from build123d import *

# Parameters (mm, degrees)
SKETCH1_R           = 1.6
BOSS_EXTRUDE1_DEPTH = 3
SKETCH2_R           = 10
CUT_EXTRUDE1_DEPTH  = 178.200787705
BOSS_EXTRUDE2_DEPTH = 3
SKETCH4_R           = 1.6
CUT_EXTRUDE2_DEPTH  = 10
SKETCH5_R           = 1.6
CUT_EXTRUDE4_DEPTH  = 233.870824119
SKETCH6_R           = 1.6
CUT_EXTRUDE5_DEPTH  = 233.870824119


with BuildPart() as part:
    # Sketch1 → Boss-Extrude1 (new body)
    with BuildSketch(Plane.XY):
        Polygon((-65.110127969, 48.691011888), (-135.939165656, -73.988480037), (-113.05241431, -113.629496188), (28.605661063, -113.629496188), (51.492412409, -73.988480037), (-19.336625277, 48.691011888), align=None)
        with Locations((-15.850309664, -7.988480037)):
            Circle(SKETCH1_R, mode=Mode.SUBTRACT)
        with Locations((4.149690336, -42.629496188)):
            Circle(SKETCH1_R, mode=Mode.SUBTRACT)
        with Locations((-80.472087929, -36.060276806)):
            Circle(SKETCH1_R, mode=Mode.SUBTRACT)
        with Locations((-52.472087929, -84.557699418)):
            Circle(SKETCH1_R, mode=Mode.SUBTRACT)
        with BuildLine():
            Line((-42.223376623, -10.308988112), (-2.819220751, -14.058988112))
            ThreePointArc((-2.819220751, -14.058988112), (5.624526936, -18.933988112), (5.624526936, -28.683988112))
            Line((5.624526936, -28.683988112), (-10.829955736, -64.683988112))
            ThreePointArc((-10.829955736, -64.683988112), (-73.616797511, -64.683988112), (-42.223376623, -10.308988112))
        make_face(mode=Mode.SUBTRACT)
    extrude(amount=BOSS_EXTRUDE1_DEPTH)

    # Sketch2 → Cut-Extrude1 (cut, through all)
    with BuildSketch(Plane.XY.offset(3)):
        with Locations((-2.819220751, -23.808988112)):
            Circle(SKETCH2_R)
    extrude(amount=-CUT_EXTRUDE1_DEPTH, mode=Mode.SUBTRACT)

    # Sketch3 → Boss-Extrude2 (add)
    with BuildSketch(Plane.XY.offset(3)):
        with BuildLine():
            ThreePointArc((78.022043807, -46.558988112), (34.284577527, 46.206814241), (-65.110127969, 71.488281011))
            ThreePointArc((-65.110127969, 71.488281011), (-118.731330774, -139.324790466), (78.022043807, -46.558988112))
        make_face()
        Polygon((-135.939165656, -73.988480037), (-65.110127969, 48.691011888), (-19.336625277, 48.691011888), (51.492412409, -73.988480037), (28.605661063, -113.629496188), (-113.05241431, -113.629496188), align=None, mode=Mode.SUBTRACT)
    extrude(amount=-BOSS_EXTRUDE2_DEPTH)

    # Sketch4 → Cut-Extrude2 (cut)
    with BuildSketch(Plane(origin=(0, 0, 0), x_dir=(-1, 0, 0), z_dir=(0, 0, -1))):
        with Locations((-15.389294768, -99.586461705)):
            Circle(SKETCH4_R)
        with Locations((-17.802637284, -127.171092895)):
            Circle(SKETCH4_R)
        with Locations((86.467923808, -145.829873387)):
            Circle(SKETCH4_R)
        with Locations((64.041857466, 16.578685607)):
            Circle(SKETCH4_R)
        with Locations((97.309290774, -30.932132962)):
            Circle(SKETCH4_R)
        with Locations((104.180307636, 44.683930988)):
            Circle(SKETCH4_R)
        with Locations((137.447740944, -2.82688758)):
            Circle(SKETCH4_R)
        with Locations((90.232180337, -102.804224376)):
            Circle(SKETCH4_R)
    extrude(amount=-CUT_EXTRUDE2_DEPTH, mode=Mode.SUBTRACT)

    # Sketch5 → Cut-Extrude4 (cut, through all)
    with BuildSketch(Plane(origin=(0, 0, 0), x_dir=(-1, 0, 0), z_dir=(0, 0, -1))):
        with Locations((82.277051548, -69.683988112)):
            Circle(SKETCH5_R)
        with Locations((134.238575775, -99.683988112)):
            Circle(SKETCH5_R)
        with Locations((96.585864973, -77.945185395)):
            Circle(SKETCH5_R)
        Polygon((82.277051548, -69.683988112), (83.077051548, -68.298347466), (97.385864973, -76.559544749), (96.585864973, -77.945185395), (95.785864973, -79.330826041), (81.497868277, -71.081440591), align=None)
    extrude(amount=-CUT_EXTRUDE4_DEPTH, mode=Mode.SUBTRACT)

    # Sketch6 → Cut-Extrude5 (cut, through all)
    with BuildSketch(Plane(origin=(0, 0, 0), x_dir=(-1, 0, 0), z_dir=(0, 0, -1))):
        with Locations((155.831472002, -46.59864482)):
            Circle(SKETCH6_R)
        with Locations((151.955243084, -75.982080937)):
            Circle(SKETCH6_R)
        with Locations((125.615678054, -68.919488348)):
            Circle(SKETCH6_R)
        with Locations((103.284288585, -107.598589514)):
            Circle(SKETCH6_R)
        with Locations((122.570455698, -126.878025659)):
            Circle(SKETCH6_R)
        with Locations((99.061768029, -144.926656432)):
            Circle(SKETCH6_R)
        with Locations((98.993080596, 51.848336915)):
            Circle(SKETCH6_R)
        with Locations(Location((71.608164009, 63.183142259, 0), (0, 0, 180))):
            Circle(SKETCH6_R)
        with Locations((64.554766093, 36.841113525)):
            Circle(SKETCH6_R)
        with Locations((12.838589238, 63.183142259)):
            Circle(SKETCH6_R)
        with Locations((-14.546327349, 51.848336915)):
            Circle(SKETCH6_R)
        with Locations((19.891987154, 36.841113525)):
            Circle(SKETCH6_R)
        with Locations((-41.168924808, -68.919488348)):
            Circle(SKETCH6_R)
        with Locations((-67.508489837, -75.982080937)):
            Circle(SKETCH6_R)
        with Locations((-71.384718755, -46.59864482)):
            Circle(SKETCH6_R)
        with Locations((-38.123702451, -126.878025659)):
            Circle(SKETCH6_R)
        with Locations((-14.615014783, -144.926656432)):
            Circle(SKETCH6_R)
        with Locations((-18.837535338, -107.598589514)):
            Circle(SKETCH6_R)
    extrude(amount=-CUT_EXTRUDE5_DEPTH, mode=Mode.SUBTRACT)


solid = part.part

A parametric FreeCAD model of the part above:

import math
import FreeCAD as App
import Part
import Sketcher
Q = App.Units.Quantity

doc = App.newDocument("Part")
body = doc.addObject("PartDesign::Body", "Body")

# Sketch on XY plane
sketch1 = body.newObject("Sketcher::SketchObject", "Sketch")
sketch1.AttachmentSupport = (doc.getObject("XY_Plane"), [""])
sketch1.MapMode = "FlatFace"
sketch1.addGeometry([
    Part.LineSegment(App.Vector(-65.1, 48.7, 0), App.Vector(-135.9, -74, 0)),  # 0
    Part.LineSegment(App.Vector(-135.9, -74, 0), App.Vector(-113.1, -113.6, 0)),  # 1
    Part.LineSegment(App.Vector(-113.1, -113.6, 0), App.Vector(28.6, -113.6, 0)),  # 2
    Part.LineSegment(App.Vector(28.6, -113.6, 0), App.Vector(51.5, -74, 0)),  # 3
    Part.LineSegment(App.Vector(51.5, -74, 0), App.Vector(-19.3, 48.7, 0)),  # 4
    Part.LineSegment(App.Vector(-19.3, 48.7, 0), App.Vector(-65.1, 48.7, 0)),  # 5
    Part.Circle(App.Vector(-52.5, -84.6, 0), App.Vector(0, 0, 1), 1.6),  # 6
    Part.ArcOfCircle(Part.Circle(App.Vector(-42.2, -46.6, 0), App.Vector(0, 0, 1), 36.2), math.radians(90), math.radians(330)),  # 7
    Part.LineSegment(App.Vector(-42.2, -10.3, 0), App.Vector(-2.8, -14.1, 0)),  # 8
    Part.ArcOfCircle(Part.Circle(App.Vector(-2.8, -23.8, 0), App.Vector(0, 0, 1), 9.8), math.radians(-30), math.radians(90)),  # 9
    Part.LineSegment(App.Vector(5.6, -28.7, 0), App.Vector(-10.8, -64.7, 0)),  # 10
    Part.Circle(App.Vector(-80.5, -36.1, 0), App.Vector(0, 0, 1), 1.6),  # 11
    Part.Circle(App.Vector(4.1, -42.6, 0), App.Vector(0, 0, 1), 1.6),  # 12
    Part.Circle(App.Vector(-15.9, -8, 0), App.Vector(0, 0, 1), 1.6),  # 13
], False)
sketch1.addConstraint([
    Sketcher.Constraint("Coincident", 0, 2, 1, 1),
    Sketcher.Constraint("Coincident", 1, 2, 2, 1),
    Sketcher.Constraint("Coincident", 2, 2, 3, 1),
    Sketcher.Constraint("Coincident", 3, 2, 4, 1),
    Sketcher.Constraint("Coincident", 4, 2, 5, 1),
    Sketcher.Constraint("Coincident", 5, 2, 0, 1),
    Sketcher.Constraint("Coincident", 7, 1, 8, 1),
    Sketcher.Constraint("Coincident", 8, 2, 9, 2),
    Sketcher.Constraint("Coincident", 9, 1, 10, 1),
    Sketcher.Constraint("Coincident", 10, 2, 7, 2),
    Sketcher.Constraint("Horizontal", 2),
    Sketcher.Constraint("Horizontal", 5),
    Sketcher.Constraint("Equal", 6, 11),
    Sketcher.Constraint("Equal", 11, 12),
    Sketcher.Constraint("Equal", 12, 13),
    Sketcher.Constraint("Parallel", 0, 3),
    Sketcher.Constraint("Parallel", 1, 4),
    Sketcher.Constraint("Horizontal", 0, 2, 3, 2),
    Sketcher.Constraint("Vertical", 9, 3, 8, 2),
    Sketcher.Constraint("Equal", 1, 3),
    Sketcher.Constraint("Equal", 8, 10),
    Sketcher.Constraint("Diameter", 6, 3.2),
    Sketcher.Constraint("Angle", 0, Q("-120 deg")),
    Sketcher.Constraint("Radius", 7, 36.25),
    Sketcher.Constraint("Radius", 9, 9.75),
    Sketcher.Constraint("DistanceX", 11, 3, 6, 3, 28.0),
    Sketcher.Constraint("DistanceX", 13, 3, 12, 3, 20.0),
    Sketcher.Constraint("DistanceY", 0, 2, 13, 3, 66.0),
    Sketcher.Constraint("DistanceY", 1, 2, 12, 3, 71.0),
    Sketcher.Constraint("DistanceY", 10, 2, 9, 1, 36.0),
    Sketcher.Constraint("DistanceY", 9, 3, 4, 2, 72.5),
    Sketcher.Constraint("DistanceY", 9, 3, 7, 1, 13.5),
    Sketcher.Constraint("DistanceY", 9, 1, 9, 3, 4.875),
    Sketcher.Constraint("DistanceY", 6, 3, -1, 1, 84.557699),
    Sketcher.Constraint("DistanceX", 2, 1, 2, 2, 141.658075),
    Sketcher.Constraint("DistanceX", 5, 2, 5, 1, 45.773503),
    Sketcher.Constraint("DistanceY", 7, 3, -1, 1, 46.558988),
    Sketcher.Constraint("DistanceX", 9, 3, -1, 1, 2.819221),
    Sketcher.Constraint("DistanceX", -1, 1, 12, 3, 4.14969),
    Sketcher.Constraint("DistanceY", 13, 3, -1, 1, 7.98848),
    Sketcher.Constraint("DistanceX", -1, 1, 2, 2, 28.605661),
    Sketcher.Constraint("DistanceX", 6, 3, 7, 3, 10.248711),
    Sketcher.Constraint("DistanceY", 7, 3, 11, 3, 10.498711),
    Sketcher.Constraint("DistanceX", 6, 3, 12, 3, 56.621778),
])
pad1 = body.newObject("PartDesign::Pad", "Pad")
pad1.Profile = sketch1
pad1.Length = 3

# Sketch on XY plane
sketch2 = body.newObject("Sketcher::SketchObject", "Sketch001")
sketch2.AttachmentSupport = (doc.getObject("XY_Plane"), [""])
sketch2.MapMode = "FlatFace"
sketch2.AttachmentOffset = App.Placement(App.Vector(0, 0, 3), App.Rotation())
sketch2.addGeometry(Part.Circle(App.Vector(-3, -24, 0), App.Vector(0, 0, 1), 10), False)
sketch2.addConstraint([
    Sketcher.Constraint("Diameter", 0, 20.0),
    Sketcher.Constraint("DistanceX", 0, 3, -1, 1, 2.819221),
    Sketcher.Constraint("DistanceY", 0, 3, -1, 1, 23.808988),
])
pocket1 = body.newObject("PartDesign::Pocket", "Pocket")
pocket1.Profile = sketch2
pocket1.Type = "ThroughAll"

# Sketch on XY plane
sketch3 = body.newObject("Sketcher::SketchObject", "Sketch002")
sketch3.AttachmentSupport = (doc.getObject("XY_Plane"), [""])
sketch3.MapMode = "FlatFace"
sketch3.AttachmentOffset = App.Placement(App.Vector(0, 0, 3), App.Rotation())
sketch3.addGeometry([
    Part.Circle(App.Vector(-42, -47, 0), App.Vector(0, 0, 1), 120),  # 0
    Part.LineSegment(App.Vector(-113, -114, 0), App.Vector(-136, -74, 0)),  # 1
    Part.LineSegment(App.Vector(-136, -74, 0), App.Vector(-65, 49, 0)),  # 2
    Part.LineSegment(App.Vector(-65, 49, 0), App.Vector(-19, 49, 0)),  # 3
    Part.LineSegment(App.Vector(-19, 49, 0), App.Vector(51, -74, 0)),  # 4
    Part.LineSegment(App.Vector(51, -74, 0), App.Vector(29, -114, 0)),  # 5
    Part.LineSegment(App.Vector(29, -114, 0), App.Vector(-113, -114, 0)),  # 6
], False)
sketch3.addConstraint([
    Sketcher.Constraint("Coincident", 1, 2, 2, 1),
    Sketcher.Constraint("Coincident", 2, 2, 3, 1),
    Sketcher.Constraint("Coincident", 3, 2, 4, 1),
    Sketcher.Constraint("Coincident", 4, 2, 5, 1),
    Sketcher.Constraint("Coincident", 5, 2, 6, 1),
    Sketcher.Constraint("Coincident", 6, 2, 1, 1),
    Sketcher.Constraint("Horizontal", 3),
    Sketcher.Constraint("Horizontal", 6),
    Sketcher.Constraint("Parallel", 1, 4),
    Sketcher.Constraint("Parallel", 2, 5),
    Sketcher.Constraint("Horizontal", 1, 2, 4, 2),
    Sketcher.Constraint("Equal", 2, 4),
    Sketcher.Constraint("Angle", 1, Q("120 deg")),
    Sketcher.Constraint("Diameter", 0, 240.490841),
    Sketcher.Constraint("DistanceY", 0, 3, 2, 2, 95.25),
    Sketcher.Constraint("DistanceX", 3, 1, 3, 2, 45.773503),
    Sketcher.Constraint("DistanceX", 6, 2, 6, 1, 141.658075),
    Sketcher.Constraint("DistanceY", 0, 3, -1, 1, 46.558988),
    Sketcher.Constraint("DistanceY", 1, 2, -1, 1, 73.98848),
    Sketcher.Constraint("DistanceX", -1, 1, 5, 2, 28.605661),
    Sketcher.Constraint("DistanceX", 1, 2, 0, 3, 93.715789),
])
pad2 = body.newObject("PartDesign::Pad", "Pad001")
pad2.Profile = sketch3
pad2.Length = 3
pad2.Reversed = True

# Sketch on XY plane
sketch4 = body.newObject("Sketcher::SketchObject", "Sketch003")
sketch4.AttachmentSupport = (doc.getObject("XY_Plane"), [""])
sketch4.MapMode = "FlatFace"
sketch4.addGeometry([
    Part.Circle(App.Vector(15.4, -99.6, 0), App.Vector(0, 0, 1), 1.6),  # 0
    Part.Circle(App.Vector(17.8, -127.2, 0), App.Vector(0, 0, 1), 1.6),  # 1
    Part.Circle(App.Vector(-86.5, -145.8, 0), App.Vector(0, 0, 1), 1.6),  # 2
    Part.Circle(App.Vector(-64, 16.6, 0), App.Vector(0, 0, 1), 1.6),  # 3
    Part.Circle(App.Vector(-97.3, -30.9, 0), App.Vector(0, 0, 1), 1.6),  # 4
    Part.Circle(App.Vector(-104.2, 44.7, 0), App.Vector(0, 0, 1), 1.6),  # 5
    Part.Circle(App.Vector(-137.4, -2.8, 0), App.Vector(0, 0, 1), 1.6),  # 6
    Part.Circle(App.Vector(-90.2, -102.8, 0), App.Vector(0, 0, 1), 1.6),  # 7
], False)
sketch4.addConstraint([
    Sketcher.Constraint("Equal", 0, 1),
    Sketcher.Constraint("Equal", 1, 2),
    Sketcher.Constraint("Equal", 2, 3),
    Sketcher.Constraint("Equal", 3, 4),
    Sketcher.Constraint("Equal", 4, 5),
    Sketcher.Constraint("Equal", 5, 6),
    Sketcher.Constraint("Equal", 6, 7),
    Sketcher.Constraint("Diameter", 0, 3.2),
    Sketcher.Constraint("DistanceY", 0, 3, -1, 1, 99.586462),
    Sketcher.Constraint("DistanceX", 4, 3, -1, 1, 97.309291),
    Sketcher.Constraint("DistanceY", -1, 1, 5, 3, 44.683931),
    Sketcher.Constraint("DistanceX", 6, 3, -1, 1, 137.447741),
    Sketcher.Constraint("DistanceX", 7, 3, -1, 1, 90.23218),
    Sketcher.Constraint("DistanceY", 1, 3, 0, 3, 27.584631),
    Sketcher.Constraint("DistanceX", 2, 3, 1, 3, 104.270561),
    Sketcher.Constraint("DistanceY", 2, 3, 1, 3, 18.65878),
    Sketcher.Constraint("DistanceX", 2, 3, 0, 3, 101.857219),
    Sketcher.Constraint("DistanceY", 2, 3, 3, 3, 162.408559),
    Sketcher.Constraint("DistanceY", 4, 3, 3, 3, 47.510819),
    Sketcher.Constraint("DistanceX", 4, 3, 1, 3, 115.111928),
    Sketcher.Constraint("DistanceX", 5, 3, 3, 3, 40.13845),
    Sketcher.Constraint("DistanceY", 6, 3, 5, 3, 47.510819),
    Sketcher.Constraint("DistanceY", 2, 3, 7, 3, 43.025649),
    Sketcher.Constraint("DistanceX", 3, 3, -1, 1, 64.041857),
])
pocket2 = body.newObject("PartDesign::Pocket", "Pocket001")
pocket2.Profile = sketch4
pocket2.Length = 10
pocket2.Reversed = True

# Sketch on XY plane
sketch5 = body.newObject("Sketcher::SketchObject", "Sketch004")
sketch5.AttachmentSupport = (doc.getObject("XY_Plane"), [""])
sketch5.MapMode = "FlatFace"
sketch5.addGeometry([
    Part.LineSegment(App.Vector(-97.4, -76.6, 0), App.Vector(-83.1, -68.3, 0)),  # 0
    Part.ArcOfCircle(Part.Circle(App.Vector(-82.3, -69.7, 0), App.Vector(0, 0, 1), 1.6), math.radians(-61), math.radians(120)),  # 1
    Part.LineSegment(App.Vector(-81.5, -71.1, 0), App.Vector(-95.8, -79.3, 0)),  # 2
    Part.ArcOfCircle(Part.Circle(App.Vector(-96.6, -77.9, 0), App.Vector(0, 0, 1), 1.6), math.radians(120), math.radians(300)),  # 3
    Part.Circle(App.Vector(-134.2, -99.7, 0), App.Vector(0, 0, 1), 1.6),  # 4
], False)
sketch5.addConstraint([
    Sketcher.Constraint("Tangent", 0, 2, 1, 2),
    Sketcher.Constraint("Coincident", 1, 1, 2, 1),
    Sketcher.Constraint("Coincident", 2, 2, 3, 2),
    Sketcher.Constraint("Tangent", 3, 1, 0, 1),
    Sketcher.Constraint("Equal", 1, 3),
    Sketcher.Constraint("Equal", 3, 4),
    Sketcher.Constraint("Diameter", 4, 3.2),
    Sketcher.Constraint("Angle", 0, Q("30 deg")),
    Sketcher.Constraint("DistanceY", 4, 3, 1, 3, 30.0),
    Sketcher.Constraint("DistanceX", 3, 3, 2, 2, 0.8),
    Sketcher.Constraint("Distance", 2, 16.498461),
    Sketcher.Constraint("DistanceX", 1, 3, -1, 1, 82.277052),
    Sketcher.Constraint("DistanceY", 1, 3, -1, 1, 69.683988),
    Sketcher.Constraint("DistanceX", 1, 1, -1, 1, 81.497868),
    Sketcher.Constraint("DistanceX", 4, 3, 3, 3, 37.652711),
])
pocket3 = body.newObject("PartDesign::Pocket", "Pocket002")
pocket3.Profile = sketch5
pocket3.Type = "ThroughAll"
pocket3.Reversed = True

# Sketch on XY plane
sketch6 = body.newObject("Sketcher::SketchObject", "Sketch005")
sketch6.AttachmentSupport = (doc.getObject("XY_Plane"), [""])
sketch6.MapMode = "FlatFace"
sketch6.addGeometry([
    Part.Circle(App.Vector(-155.8, -46.6, 0), App.Vector(0, 0, 1), 1.6),  # 0
    Part.Circle(App.Vector(-152, -76, 0), App.Vector(0, 0, 1), 1.6),  # 1
    Part.Circle(App.Vector(-125.6, -68.9, 0), App.Vector(0, 0, 1), 1.6),  # 2
    Part.Circle(App.Vector(-103.3, -107.6, 0), App.Vector(0, 0, 1), 1.6),  # 3
    Part.Circle(App.Vector(-122.6, -126.9, 0), App.Vector(0, 0, 1), 1.6),  # 4
    Part.Circle(App.Vector(-99.1, -144.9, 0), App.Vector(0, 0, 1), 1.6),  # 5
    Part.Circle(App.Vector(-99, 51.8, 0), App.Vector(0, 0, 1), 1.6),  # 6
    Part.Circle(App.Vector(-71.6, 63.2, 0), App.Vector(0, 0, 1), 1.6),  # 7
    Part.Circle(App.Vector(-64.6, 36.8, 0), App.Vector(0, 0, 1), 1.6),  # 8
    Part.Circle(App.Vector(-12.8, 63.2, 0), App.Vector(0, 0, 1), 1.6),  # 9
    Part.Circle(App.Vector(14.5, 51.8, 0), App.Vector(0, 0, 1), 1.6),  # 10
    Part.Circle(App.Vector(-19.9, 36.8, 0), App.Vector(0, 0, 1), 1.6),  # 11
    Part.Circle(App.Vector(41.2, -68.9, 0), App.Vector(0, 0, 1), 1.6),  # 12
    Part.Circle(App.Vector(67.5, -76, 0), App.Vector(0, 0, 1), 1.6),  # 13
    Part.Circle(App.Vector(71.4, -46.6, 0), App.Vector(0, 0, 1), 1.6),  # 14
    Part.Circle(App.Vector(38.1, -126.9, 0), App.Vector(0, 0, 1), 1.6),  # 15
    Part.Circle(App.Vector(14.6, -144.9, 0), App.Vector(0, 0, 1), 1.6),  # 16
    Part.Circle(App.Vector(18.8, -107.6, 0), App.Vector(0, 0, 1), 1.6),  # 17
], False)
sketch6.addConstraint([
    Sketcher.Constraint("Equal", 0, 1),
    Sketcher.Constraint("Equal", 1, 2),
    Sketcher.Constraint("Equal", 2, 3),
    Sketcher.Constraint("Equal", 3, 4),
    Sketcher.Constraint("Equal", 4, 5),
    Sketcher.Constraint("Equal", 5, 6),
    Sketcher.Constraint("Equal", 6, 7),
    Sketcher.Constraint("Equal", 7, 8),
    Sketcher.Constraint("Equal", 8, 9),
    Sketcher.Constraint("Equal", 9, 10),
    Sketcher.Constraint("Equal", 10, 11),
    Sketcher.Constraint("Equal", 11, 12),
    Sketcher.Constraint("Equal", 12, 13),
    Sketcher.Constraint("Equal", 13, 14),
    Sketcher.Constraint("Equal", 14, 15),
    Sketcher.Constraint("Equal", 15, 16),
    Sketcher.Constraint("Equal", 16, 17),
    Sketcher.Constraint("Horizontal", 7, 3, 9, 3),
    Sketcher.Constraint("Horizontal", 6, 3, 10, 3),
    Sketcher.Constraint("Horizontal", 8, 3, 11, 3),
    Sketcher.Constraint("Horizontal", 2, 3, 12, 3),
    Sketcher.Constraint("Horizontal", 1, 3, 13, 3),
    Sketcher.Constraint("Horizontal", 0, 3, 14, 3),
    Sketcher.Constraint("Horizontal", 4, 3, 15, 3),
    Sketcher.Constraint("Horizontal", 5, 3, 16, 3),
    Sketcher.Constraint("Horizontal", 3, 3, 17, 3),
    Sketcher.Constraint("Diameter", 0, 3.2),
    Sketcher.Constraint("DistanceY", 3, 3, 2, 3, 38.679101),
    Sketcher.Constraint("DistanceY", 2, 3, 8, 3, 105.760602),
    Sketcher.Constraint("DistanceY", 1, 3, -1, 1, 75.982081),
    Sketcher.Constraint("DistanceX", 2, 3, -1, 1, 125.615678),
    Sketcher.Constraint("DistanceY", 2, 3, -1, 1, 68.919488),
    Sketcher.Constraint("DistanceX", 3, 3, -1, 1, 103.284289),
    Sketcher.Constraint("DistanceX", 5, 3, -1, 1, 99.061768),
    Sketcher.Constraint("DistanceX", 6, 3, -1, 1, 98.993081),
    Sketcher.Constraint("DistanceX", 9, 3, -1, 1, 12.838589),
    Sketcher.Constraint("DistanceX", -1, 1, 13, 3, 67.50849),
    Sketcher.Constraint("DistanceX", -1, 1, 14, 3, 71.384719),
    Sketcher.Constraint("DistanceX", 0, 3, 1, 3, 3.876229),
    Sketcher.Constraint("DistanceY", 4, 3, 0, 3, 80.279381),
    Sketcher.Constraint("DistanceY", 5, 3, 4, 3, 18.048631),
    Sketcher.Constraint("DistanceY", 5, 3, 2, 3, 76.007168),
    Sketcher.Constraint("DistanceX", 0, 3, 6, 3, 56.838391),
    Sketcher.Constraint("DistanceY", 0, 3, 6, 3, 98.446982),
    Sketcher.Constraint("DistanceY", 2, 3, 7, 3, 132.102631),
    Sketcher.Constraint("DistanceX", 1, 3, 7, 3, 80.347079),
    Sketcher.Constraint("DistanceX", 2, 3, 8, 3, 61.060912),
    Sketcher.Constraint("DistanceX", 7, 3, 10, 3, 86.154491),
    Sketcher.Constraint("DistanceX", 8, 3, 11, 3, 44.662779),
    Sketcher.Constraint("DistanceX", 11, 3, 12, 3, 61.060912),
    Sketcher.Constraint("DistanceX", 5, 3, 15, 3, 137.18547),
    Sketcher.Constraint("DistanceX", 16, 3, 12, 3, 26.55391),
    Sketcher.Constraint("DistanceX", 16, 3, 17, 3, 4.222521),
    Sketcher.Constraint("DistanceX", 4, 3, -1, 1, 122.570456),
])
pocket4 = body.newObject("PartDesign::Pocket", "Pocket003")
pocket4.Profile = sketch6
pocket4.Type = "ThroughAll"
pocket4.Reversed = True

doc.recompute()
